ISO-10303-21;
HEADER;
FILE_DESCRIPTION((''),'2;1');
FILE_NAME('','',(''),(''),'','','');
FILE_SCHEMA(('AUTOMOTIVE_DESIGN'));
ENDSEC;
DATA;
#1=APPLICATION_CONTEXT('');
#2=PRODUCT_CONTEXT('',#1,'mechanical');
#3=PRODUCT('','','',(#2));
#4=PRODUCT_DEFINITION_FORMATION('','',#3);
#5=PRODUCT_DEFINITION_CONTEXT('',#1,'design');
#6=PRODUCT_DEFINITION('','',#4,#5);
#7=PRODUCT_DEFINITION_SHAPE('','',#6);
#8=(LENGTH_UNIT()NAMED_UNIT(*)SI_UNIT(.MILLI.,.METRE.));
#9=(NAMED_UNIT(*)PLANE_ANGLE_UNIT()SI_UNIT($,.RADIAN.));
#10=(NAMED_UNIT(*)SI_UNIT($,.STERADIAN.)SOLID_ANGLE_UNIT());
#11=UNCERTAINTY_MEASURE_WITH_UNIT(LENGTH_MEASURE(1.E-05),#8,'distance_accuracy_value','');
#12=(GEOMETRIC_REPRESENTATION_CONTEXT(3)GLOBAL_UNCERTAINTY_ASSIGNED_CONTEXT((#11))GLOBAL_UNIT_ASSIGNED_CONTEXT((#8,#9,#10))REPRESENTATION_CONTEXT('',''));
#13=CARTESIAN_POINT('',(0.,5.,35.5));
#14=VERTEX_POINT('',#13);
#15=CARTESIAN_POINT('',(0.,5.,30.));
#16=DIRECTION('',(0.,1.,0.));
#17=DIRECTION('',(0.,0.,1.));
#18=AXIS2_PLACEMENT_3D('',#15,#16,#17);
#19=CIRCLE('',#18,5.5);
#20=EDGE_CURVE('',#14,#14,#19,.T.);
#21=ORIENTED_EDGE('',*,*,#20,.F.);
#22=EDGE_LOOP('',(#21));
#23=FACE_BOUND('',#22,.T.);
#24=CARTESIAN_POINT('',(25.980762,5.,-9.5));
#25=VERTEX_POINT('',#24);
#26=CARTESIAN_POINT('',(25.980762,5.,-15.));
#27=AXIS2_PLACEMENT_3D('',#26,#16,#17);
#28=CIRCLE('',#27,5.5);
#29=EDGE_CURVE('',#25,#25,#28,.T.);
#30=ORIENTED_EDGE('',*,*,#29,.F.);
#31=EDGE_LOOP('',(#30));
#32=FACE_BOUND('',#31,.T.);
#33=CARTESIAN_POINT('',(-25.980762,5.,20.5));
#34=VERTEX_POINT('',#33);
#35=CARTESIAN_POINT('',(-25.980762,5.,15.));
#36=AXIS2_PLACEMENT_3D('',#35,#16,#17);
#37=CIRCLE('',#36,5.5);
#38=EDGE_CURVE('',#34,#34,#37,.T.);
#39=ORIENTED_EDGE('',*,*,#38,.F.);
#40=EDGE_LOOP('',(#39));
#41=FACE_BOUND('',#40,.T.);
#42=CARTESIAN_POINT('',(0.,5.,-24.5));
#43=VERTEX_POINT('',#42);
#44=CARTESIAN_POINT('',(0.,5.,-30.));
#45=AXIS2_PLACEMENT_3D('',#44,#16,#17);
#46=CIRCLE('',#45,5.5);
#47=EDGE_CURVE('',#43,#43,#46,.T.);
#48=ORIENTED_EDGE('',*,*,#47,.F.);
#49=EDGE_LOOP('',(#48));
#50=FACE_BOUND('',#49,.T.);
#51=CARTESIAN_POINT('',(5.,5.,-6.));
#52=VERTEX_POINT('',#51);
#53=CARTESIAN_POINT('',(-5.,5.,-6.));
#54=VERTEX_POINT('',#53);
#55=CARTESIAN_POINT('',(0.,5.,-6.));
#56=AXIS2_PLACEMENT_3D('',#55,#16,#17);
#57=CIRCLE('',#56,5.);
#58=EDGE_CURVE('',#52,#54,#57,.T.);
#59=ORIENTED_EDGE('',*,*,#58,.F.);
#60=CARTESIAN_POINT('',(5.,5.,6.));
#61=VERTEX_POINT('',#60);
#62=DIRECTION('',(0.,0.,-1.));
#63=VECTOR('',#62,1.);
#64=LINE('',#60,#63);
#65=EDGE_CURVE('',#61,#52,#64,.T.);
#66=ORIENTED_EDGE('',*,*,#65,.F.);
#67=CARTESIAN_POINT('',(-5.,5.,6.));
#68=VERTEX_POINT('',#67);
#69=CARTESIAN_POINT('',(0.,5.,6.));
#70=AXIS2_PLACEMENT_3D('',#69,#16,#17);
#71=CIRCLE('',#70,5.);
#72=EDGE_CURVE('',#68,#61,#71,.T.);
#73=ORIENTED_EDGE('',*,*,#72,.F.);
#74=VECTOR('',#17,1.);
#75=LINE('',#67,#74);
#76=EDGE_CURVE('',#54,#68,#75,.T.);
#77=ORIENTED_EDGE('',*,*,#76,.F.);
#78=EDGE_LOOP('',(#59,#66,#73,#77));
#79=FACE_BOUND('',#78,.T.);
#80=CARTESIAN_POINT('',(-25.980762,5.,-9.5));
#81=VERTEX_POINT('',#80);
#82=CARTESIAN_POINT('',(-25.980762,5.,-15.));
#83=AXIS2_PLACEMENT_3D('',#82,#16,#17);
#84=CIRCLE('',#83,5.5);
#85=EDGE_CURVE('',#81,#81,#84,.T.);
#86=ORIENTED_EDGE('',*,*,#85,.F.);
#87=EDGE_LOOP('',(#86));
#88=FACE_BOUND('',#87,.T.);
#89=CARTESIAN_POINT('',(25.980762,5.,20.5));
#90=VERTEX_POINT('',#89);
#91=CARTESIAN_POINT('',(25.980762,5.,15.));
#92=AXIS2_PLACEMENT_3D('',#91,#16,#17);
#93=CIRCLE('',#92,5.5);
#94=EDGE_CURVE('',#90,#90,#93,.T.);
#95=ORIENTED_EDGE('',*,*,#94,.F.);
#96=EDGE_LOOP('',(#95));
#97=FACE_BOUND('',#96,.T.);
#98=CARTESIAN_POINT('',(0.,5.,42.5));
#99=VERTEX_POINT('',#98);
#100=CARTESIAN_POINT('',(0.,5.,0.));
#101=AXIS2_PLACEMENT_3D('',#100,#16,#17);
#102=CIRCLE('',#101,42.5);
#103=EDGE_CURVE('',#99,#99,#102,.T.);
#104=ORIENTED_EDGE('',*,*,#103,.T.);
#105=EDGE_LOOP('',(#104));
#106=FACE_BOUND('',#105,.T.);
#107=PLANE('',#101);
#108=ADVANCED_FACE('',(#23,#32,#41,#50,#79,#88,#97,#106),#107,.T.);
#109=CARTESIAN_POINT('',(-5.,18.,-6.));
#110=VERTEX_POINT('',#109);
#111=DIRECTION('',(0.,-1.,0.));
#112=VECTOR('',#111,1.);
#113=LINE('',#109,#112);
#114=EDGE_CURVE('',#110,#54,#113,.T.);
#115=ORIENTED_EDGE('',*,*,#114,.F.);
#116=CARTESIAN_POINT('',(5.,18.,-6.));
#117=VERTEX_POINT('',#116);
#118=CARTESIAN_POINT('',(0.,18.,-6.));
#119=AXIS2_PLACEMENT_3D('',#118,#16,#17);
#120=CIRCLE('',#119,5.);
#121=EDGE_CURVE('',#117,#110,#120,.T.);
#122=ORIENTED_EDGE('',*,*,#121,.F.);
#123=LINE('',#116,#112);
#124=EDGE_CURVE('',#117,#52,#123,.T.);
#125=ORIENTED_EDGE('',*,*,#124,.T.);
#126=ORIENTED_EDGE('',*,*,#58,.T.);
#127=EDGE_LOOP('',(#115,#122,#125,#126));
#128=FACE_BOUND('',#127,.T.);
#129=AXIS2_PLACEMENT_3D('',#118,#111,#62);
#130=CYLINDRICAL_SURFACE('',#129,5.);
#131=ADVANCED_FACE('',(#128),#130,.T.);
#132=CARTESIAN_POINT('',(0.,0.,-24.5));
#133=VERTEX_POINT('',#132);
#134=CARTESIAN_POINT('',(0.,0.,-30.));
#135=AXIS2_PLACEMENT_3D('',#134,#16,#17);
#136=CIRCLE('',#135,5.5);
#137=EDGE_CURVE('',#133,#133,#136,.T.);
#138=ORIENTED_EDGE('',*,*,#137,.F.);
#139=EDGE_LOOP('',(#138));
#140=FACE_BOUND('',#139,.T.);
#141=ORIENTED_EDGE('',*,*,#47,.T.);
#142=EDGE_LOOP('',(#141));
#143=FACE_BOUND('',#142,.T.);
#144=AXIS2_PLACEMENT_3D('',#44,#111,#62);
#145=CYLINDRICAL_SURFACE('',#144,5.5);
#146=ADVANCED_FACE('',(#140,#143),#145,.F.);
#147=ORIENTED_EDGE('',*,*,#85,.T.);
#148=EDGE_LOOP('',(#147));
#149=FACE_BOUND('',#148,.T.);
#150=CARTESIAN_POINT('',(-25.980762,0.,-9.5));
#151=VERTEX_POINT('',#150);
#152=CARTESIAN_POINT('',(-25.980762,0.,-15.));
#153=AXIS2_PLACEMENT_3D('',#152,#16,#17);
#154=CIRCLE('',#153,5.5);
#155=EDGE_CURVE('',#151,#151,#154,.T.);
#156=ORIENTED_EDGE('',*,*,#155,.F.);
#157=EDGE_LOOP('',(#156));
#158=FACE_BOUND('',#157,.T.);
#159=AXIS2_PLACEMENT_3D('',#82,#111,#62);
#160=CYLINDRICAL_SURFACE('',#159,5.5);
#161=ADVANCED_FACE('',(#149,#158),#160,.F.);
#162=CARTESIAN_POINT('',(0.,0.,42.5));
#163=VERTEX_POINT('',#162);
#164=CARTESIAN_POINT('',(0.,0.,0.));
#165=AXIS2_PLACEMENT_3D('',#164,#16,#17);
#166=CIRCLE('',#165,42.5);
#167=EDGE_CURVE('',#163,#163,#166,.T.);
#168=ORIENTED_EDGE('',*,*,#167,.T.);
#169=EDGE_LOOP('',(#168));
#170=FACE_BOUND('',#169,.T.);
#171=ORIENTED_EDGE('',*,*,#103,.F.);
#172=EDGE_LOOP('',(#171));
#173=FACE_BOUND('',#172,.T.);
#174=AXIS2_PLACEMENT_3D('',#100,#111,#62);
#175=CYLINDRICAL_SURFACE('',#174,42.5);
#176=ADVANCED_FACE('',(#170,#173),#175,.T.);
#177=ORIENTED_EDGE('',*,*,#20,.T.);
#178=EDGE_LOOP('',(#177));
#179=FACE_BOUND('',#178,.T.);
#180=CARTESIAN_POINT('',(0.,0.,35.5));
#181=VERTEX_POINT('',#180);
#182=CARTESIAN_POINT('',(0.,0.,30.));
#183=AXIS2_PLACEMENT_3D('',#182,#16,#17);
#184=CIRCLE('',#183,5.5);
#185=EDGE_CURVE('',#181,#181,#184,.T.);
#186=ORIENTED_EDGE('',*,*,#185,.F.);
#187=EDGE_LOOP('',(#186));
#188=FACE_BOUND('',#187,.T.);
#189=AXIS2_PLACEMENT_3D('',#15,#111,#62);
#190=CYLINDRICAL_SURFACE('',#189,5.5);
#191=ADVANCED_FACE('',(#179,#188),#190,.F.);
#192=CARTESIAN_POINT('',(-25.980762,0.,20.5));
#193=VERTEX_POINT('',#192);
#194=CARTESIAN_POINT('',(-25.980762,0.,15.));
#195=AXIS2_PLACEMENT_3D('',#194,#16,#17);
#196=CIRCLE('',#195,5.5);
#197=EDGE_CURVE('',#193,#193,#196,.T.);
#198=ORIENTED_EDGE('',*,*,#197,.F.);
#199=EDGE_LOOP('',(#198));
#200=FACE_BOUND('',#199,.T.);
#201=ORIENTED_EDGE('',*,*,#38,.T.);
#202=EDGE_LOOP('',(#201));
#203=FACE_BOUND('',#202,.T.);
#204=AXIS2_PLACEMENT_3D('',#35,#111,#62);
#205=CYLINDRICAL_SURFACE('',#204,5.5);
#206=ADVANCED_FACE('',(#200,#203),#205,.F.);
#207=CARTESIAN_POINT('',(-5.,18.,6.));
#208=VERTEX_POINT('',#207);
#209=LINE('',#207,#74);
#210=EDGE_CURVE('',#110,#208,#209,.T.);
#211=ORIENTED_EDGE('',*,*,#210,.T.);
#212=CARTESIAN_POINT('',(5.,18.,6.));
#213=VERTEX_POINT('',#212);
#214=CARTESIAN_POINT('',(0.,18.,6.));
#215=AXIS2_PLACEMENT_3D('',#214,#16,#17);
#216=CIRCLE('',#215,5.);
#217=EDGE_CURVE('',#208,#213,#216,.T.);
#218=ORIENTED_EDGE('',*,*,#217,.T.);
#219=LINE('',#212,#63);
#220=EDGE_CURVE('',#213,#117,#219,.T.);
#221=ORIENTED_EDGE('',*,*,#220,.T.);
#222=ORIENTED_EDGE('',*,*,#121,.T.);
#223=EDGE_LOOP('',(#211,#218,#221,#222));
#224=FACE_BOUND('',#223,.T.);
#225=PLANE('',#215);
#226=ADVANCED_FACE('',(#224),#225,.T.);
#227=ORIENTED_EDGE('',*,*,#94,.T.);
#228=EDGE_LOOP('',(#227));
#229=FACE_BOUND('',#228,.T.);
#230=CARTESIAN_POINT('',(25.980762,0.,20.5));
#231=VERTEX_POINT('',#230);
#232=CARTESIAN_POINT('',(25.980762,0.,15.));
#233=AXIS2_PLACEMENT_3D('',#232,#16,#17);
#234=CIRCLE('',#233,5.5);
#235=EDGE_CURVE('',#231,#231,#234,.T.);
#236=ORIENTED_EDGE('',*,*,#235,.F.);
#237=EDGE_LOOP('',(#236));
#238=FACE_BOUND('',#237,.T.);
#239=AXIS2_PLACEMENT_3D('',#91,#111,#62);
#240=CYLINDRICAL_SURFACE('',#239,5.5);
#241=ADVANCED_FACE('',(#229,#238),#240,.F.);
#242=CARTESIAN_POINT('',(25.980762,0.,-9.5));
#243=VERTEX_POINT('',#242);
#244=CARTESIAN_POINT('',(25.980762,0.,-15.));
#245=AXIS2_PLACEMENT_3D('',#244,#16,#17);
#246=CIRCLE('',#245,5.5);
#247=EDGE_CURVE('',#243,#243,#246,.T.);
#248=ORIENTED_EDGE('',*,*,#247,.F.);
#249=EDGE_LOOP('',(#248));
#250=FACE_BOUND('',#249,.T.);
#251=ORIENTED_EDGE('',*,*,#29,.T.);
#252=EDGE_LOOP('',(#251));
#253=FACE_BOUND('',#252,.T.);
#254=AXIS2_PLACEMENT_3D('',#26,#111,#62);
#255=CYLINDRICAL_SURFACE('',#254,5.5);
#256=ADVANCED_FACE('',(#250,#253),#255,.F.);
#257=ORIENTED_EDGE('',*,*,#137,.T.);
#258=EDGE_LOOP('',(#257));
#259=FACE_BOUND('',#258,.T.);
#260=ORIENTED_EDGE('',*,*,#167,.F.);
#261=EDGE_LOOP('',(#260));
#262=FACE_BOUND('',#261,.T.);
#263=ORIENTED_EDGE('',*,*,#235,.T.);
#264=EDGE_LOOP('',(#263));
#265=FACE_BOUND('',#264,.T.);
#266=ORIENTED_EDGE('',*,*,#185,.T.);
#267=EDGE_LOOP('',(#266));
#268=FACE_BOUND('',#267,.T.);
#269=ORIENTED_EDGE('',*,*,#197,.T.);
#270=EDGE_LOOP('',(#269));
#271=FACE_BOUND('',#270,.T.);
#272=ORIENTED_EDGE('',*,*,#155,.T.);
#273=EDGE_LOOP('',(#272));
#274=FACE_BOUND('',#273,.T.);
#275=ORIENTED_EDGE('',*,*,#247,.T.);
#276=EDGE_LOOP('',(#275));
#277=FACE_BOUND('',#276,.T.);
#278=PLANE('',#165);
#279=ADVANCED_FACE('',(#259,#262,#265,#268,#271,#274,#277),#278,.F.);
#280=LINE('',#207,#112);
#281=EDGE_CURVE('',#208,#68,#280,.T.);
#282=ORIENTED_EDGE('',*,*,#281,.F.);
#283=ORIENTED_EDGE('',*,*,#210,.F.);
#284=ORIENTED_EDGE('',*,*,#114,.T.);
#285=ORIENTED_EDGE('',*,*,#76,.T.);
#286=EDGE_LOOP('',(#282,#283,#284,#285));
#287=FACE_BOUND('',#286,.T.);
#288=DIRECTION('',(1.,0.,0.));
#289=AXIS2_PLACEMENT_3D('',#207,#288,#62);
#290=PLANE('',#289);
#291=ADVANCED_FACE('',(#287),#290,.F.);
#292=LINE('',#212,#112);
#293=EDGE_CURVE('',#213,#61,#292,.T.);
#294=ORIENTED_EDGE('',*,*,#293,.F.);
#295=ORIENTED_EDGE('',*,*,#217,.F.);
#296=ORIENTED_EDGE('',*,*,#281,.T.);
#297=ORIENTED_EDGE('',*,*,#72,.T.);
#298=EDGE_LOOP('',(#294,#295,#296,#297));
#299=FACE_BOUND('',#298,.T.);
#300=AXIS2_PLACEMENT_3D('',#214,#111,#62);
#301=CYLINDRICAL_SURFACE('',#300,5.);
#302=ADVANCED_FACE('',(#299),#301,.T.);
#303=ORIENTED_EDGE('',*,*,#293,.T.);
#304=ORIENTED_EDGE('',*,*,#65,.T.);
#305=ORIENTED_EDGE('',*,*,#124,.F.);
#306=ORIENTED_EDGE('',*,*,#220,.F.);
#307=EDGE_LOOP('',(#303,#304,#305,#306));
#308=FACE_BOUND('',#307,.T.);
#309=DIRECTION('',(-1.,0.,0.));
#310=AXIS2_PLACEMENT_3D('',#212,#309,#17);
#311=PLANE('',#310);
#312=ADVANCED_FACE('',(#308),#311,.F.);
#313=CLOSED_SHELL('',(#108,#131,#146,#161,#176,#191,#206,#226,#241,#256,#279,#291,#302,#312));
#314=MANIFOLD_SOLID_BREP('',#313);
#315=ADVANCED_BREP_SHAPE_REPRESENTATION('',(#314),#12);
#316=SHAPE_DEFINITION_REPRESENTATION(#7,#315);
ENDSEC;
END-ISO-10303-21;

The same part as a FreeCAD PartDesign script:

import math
import FreeCAD as App
import Part
import Sketcher

V = App.Vector
Q = App.Units.Quantity

doc = App.newDocument("Part")
params = doc.addObject("Spreadsheet::Sheet", "Params")
for row, (alias, value) in enumerate([
    ("sketch1_diameter", "85 mm"),
    ("sketch1_diameter2", "11 mm"),
    ("pad1_length", "5 mm"),
    ("sketch2_radius", "5 mm"),
    ("sketch2_height", "12 mm"),
    ("pad2_length", "13 mm"),
], start=1):
    params.set(f"A{row}", alias)
    params.set(f"B{row}", "=" + value)
    params.setAlias(f"B{row}", alias)

body = doc.addObject("PartDesign::Body", "Body")

# Sketch on XZ plane
sketch1 = body.newObject("Sketcher::SketchObject", "Sketch")
sketch1.AttachmentSupport = (doc.getObject("XZ_Plane"), [""])
sketch1.MapMode = "FlatFace"
sketch1.addGeometry(Part.Circle(V(0, 0, 0), V(0, 0, 1), 42), False)
sketch1.addGeometry(Part.Circle(V(-26, -15, 0), V(0, 0, 1), 6), False)
sketch1.addGeometry(Part.Circle(V(0, -30, 0), V(0, 0, 1), 6), False)
sketch1.addGeometry(Part.Circle(V(-26, 15, 0), V(0, 0, 1), 6), False)
sketch1.addGeometry(Part.Circle(V(26, -15, 0), V(0, 0, 1), 6), False)
sketch1.addGeometry(Part.Circle(V(0, 30, 0), V(0, 0, 1), 6), False)
sketch1.addGeometry(Part.Circle(V(26, 15, 0), V(0, 0, 1), 6), False)
sketch1.addConstraint(Sketcher.Constraint("Coincident", 0, 3, -1, 1))
sketch1.addConstraint(Sketcher.Constraint("Equal", 1, 2))
sketch1.addConstraint(Sketcher.Constraint("Equal", 2, 3))
sketch1.addConstraint(Sketcher.Constraint("Equal", 3, 4))
sketch1.addConstraint(Sketcher.Constraint("Equal", 4, 5))
sketch1.addConstraint(Sketcher.Constraint("Equal", 5, 6))
sketch1.addConstraint(Sketcher.Constraint("Symmetric", 3, 3, 4, 3, -1, 1))
sketch1.addConstraint(Sketcher.Constraint("Symmetric", 2, 3, 5, 3, -1, 1))
sketch1.addConstraint(Sketcher.Constraint("Symmetric", 1, 3, 6, 3, -1, 1))
sketch1.addConstraint(Sketcher.Constraint("Symmetric", 1, 3, 4, 3, -2))
sketch1.addConstraint(Sketcher.Constraint("PointOnObject", 2, 3, -2))
sketch1.addConstraint(Sketcher.Constraint("Diameter", 0, Q("85 mm")))
sketch1.addConstraint(Sketcher.Constraint("Diameter", 1, Q("11 mm")))
sketch1.addConstraint(Sketcher.Constraint("DistanceY", 1, 3, -1, 1, Q("15 mm")))
sketch1.addConstraint(Sketcher.Constraint("DistanceY", 2, 3, -1, 1, Q("30 mm")))
sketch1.addConstraint(Sketcher.Constraint("DistanceX", 1, 3, -1, 1, Q("25.980762 mm")))
sketch1.setExpression("Constraints[11]", "Params.sketch1_diameter")
sketch1.setExpression("Constraints[12]", "Params.sketch1_diameter2")
pad1 = body.newObject("PartDesign::Pad", "Pad")
pad1.Profile = sketch1
pad1.setExpression("Length", "Params.pad1_length")
pad1.Reversed = True

# Sketch on XZ plane
sketch2 = body.newObject("Sketcher::SketchObject", "Sketch001")
sketch2.AttachmentSupport = (doc.getObject("XZ_Plane"), [""])
sketch2.MapMode = "FlatFace"
sketch2.AttachmentOffset = App.Placement(V(0, 0, -5), App.Rotation())
sketch2.addGeometry(Part.LineSegment(V(-5, -6, 0), V(-5, 6, 0)), False)
sketch2.addGeometry(Part.ArcOfCircle(Part.Circle(V(0, 6, 0), V(0, 0, 1), 5), math.radians(0), math.radians(180)), False)
sketch2.addGeometry(Part.LineSegment(V(5, 6, 0), V(5, -6, 0)), False)
sketch2.addGeometry(Part.ArcOfCircle(Part.Circle(V(0, -6, 0), V(0, 0, 1), 5), math.radians(180), math.radians(360)), False)
sketch2.addConstraint(Sketcher.Constraint("Tangent", 0, 2, 1, 2))
sketch2.addConstraint(Sketcher.Constraint("Tangent", 1, 1, 2, 1))
sketch2.addConstraint(Sketcher.Constraint("Tangent", 2, 2, 3, 2))
sketch2.addConstraint(Sketcher.Constraint("Tangent", 3, 1, 0, 1))
sketch2.addConstraint(Sketcher.Constraint("Vertical", 0))
sketch2.addConstraint(Sketcher.Constraint("Vertical", 2))
sketch2.addConstraint(Sketcher.Constraint("Symmetric", 1, 3, 3, 3, -1, 1))
sketch2.addConstraint(Sketcher.Constraint("Radius", 1, Q("5 mm")))
sketch2.addConstraint(Sketcher.Constraint("DistanceY", 0, 1, 0, 2, Q("12 mm")))
sketch2.setExpression("Constraints[7]", "Params.sketch2_radius")
sketch2.setExpression("Constraints[8]", "Params.sketch2_height")
pad2 = body.newObject("PartDesign::Pad", "Pad001")
pad2.Profile = sketch2
pad2.setExpression("Length", "Params.pad2_length")
pad2.Reversed = True

doc.recompute()
